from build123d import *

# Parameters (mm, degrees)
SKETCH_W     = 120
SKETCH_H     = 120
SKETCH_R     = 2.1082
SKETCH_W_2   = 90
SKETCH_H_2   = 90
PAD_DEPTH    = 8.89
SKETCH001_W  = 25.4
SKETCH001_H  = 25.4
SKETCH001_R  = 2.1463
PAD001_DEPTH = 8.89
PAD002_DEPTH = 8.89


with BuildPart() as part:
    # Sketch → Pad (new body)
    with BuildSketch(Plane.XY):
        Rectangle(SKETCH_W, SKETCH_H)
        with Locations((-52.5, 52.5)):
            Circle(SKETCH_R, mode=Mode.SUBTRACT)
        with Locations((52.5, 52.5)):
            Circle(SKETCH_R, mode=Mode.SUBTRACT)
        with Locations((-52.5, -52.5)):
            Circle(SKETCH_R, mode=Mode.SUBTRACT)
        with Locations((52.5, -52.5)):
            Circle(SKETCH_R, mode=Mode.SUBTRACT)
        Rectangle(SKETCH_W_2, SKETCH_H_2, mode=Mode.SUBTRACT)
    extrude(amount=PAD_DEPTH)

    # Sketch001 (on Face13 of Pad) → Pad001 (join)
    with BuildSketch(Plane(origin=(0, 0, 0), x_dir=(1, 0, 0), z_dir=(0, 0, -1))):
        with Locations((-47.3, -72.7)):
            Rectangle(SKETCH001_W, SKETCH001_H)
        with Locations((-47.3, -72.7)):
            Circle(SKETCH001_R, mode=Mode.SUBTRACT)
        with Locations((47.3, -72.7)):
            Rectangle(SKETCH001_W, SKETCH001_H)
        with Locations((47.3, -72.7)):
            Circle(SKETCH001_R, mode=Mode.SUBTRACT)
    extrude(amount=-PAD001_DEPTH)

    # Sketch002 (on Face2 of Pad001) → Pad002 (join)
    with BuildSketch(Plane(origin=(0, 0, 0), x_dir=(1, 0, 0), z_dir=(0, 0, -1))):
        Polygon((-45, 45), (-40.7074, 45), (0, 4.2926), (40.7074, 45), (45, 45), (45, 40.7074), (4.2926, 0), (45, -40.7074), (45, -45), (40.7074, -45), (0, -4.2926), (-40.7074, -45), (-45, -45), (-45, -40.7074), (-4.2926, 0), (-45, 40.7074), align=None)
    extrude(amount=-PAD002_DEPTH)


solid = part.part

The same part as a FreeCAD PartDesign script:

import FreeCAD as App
import Part
import Sketcher

V = App.Vector
Q = App.Units.Quantity


def add_polygon(sketch, points):
    """Adds a closed chain of lines whose ends are joined by coincident constraints."""
    first, n = sketch.GeometryCount, len(points)
    for a, b in zip(points, points[1:] + points[:1]):
        sketch.addGeometry(Part.LineSegment(App.Vector(*a, 0), App.Vector(*b, 0)), False)
    for i in range(n):
        sketch.addConstraint(Sketcher.Constraint("Coincident", first + i, 2, first + (i + 1) % n, 1))

doc = App.newDocument("Part")
params = doc.addObject("Spreadsheet::Sheet", "Params")
for row, (alias, value) in enumerate([
    ("sketch1_diameter", "0.166 in"),
    ("pad1_length", "0.35 in"),
    ("sketch2_width", "1 in"),
    ("sketch2_diameter", "0.169 in"),
    ("pad2_length", "0.35 in"),
    ("sketch3_width", "0.169 in"),
    ("pad3_length", "0.35 in"),
], start=1):
    params.set(f"A{row}", alias)
    params.set(f"B{row}", "=" + value)
    params.setAlias(f"B{row}", alias)

body = doc.addObject("PartDesign::Body", "Body")

# Sketch on XY plane
sketch1 = body.newObject("Sketcher::SketchObject", "Sketch")
sketch1.AttachmentSupport = (doc.getObject("XY_Plane"), [""])
sketch1.MapMode = "FlatFace"
add_polygon(sketch1, [(-60, 60), (-60, -60), (60, -60), (60, 60)])  # lines 0-3
sketch1.addGeometry(Part.Circle(V(-52.5, -52.5, 0), V(0, 0, 1), 2.1), False)  # 4
sketch1.addGeometry(Part.Circle(V(52.5, -52.5, 0), V(0, 0, 1), 2.1), False)  # 5
sketch1.addGeometry(Part.Circle(V(-52.5, 52.5, 0), V(0, 0, 1), 2.1), False)  # 6
add_polygon(sketch1, [(45, -45), (-45, -45), (-45, 45), (45, 45)])  # lines 7-10
sketch1.addGeometry(Part.Circle(V(52.5, 52.5, 0), V(0, 0, 1), 2.1), False)  # 11
sketch1.addConstraint(Sketcher.Constraint("Vertical", 0))
sketch1.addConstraint(Sketcher.Constraint("Horizontal", 1))
sketch1.addConstraint(Sketcher.Constraint("Vertical", 2))
sketch1.addConstraint(Sketcher.Constraint("Horizontal", 3))
sketch1.addConstraint(Sketcher.Constraint("Horizontal", 7))
sketch1.addConstraint(Sketcher.Constraint("Vertical", 8))
sketch1.addConstraint(Sketcher.Constraint("Horizontal", 9))
sketch1.addConstraint(Sketcher.Constraint("Vertical", 10))
sketch1.addConstraint(Sketcher.Constraint("Equal", 4, 5))
sketch1.addConstraint(Sketcher.Constraint("Equal", 5, 6))
sketch1.addConstraint(Sketcher.Constraint("Equal", 6, 11))
sketch1.addConstraint(Sketcher.Constraint("Symmetric", 5, 3, 6, 3, -1, 1))
sketch1.addConstraint(Sketcher.Constraint("Symmetric", 4, 3, 11, 3, -1, 1))
sketch1.addConstraint(Sketcher.Constraint("Symmetric", 0, 2, 2, 2, -1, 1))
sketch1.addConstraint(Sketcher.Constraint("Symmetric", 7, 2, 9, 2, -1, 1))
sketch1.addConstraint(Sketcher.Constraint("Symmetric", 4, 3, 5, 3, -2))
sketch1.addConstraint(Sketcher.Constraint("Equal", 3, 0))
sketch1.addConstraint(Sketcher.Constraint("Equal", 9, 8))
sketch1.addConstraint(Sketcher.Constraint("Diameter", 4, Q("0.166 in")))
sketch1.addConstraint(Sketcher.Constraint("DistanceX", 1, 1, 1, 2, 120.0))
sketch1.addConstraint(Sketcher.Constraint("DistanceX", 7, 2, 7, 1, 90.0))
sketch1.addConstraint(Sketcher.Constraint("DistanceX", 4, 3, -1, 1, 52.5))
sketch1.addConstraint(Sketcher.Constraint("DistanceY", 4, 3, -1, 1, 52.5))
sketch1.setExpression("Constraints[26]", "Params.sketch1_diameter")
pad1 = body.newObject("PartDesign::Pad", "Pad")
pad1.Profile = sketch1
pad1.setExpression("Length", "Params.pad1_length")

# Sketch on XY plane
sketch2 = body.newObject("Sketcher::SketchObject", "Sketch001")
sketch2.AttachmentSupport = (doc.getObject("XY_Plane"), [""])
sketch2.MapMode = "FlatFace"
add_polygon(sketch2, [(-60, 60), (-60, 85.4), (-34.6, 85.4), (-34.6, 60)])  # lines 0-3
sketch2.addGeometry(Part.Circle(V(-47.3, 72.7, 0), V(0, 0, 1), 2.1), False)  # 4
add_polygon(sketch2, [(34.6, 60), (34.6, 85.4), (60, 85.4), (60, 60)])  # lines 5-8
sketch2.addGeometry(Part.Circle(V(47.3, 72.7, 0), V(0, 0, 1), 2.1), False)  # 9
sketch2.addConstraint(Sketcher.Constraint("Vertical", 0))
sketch2.addConstraint(Sketcher.Constraint("Horizontal", 1))
sketch2.addConstraint(Sketcher.Constraint("Vertical", 2))
sketch2.addConstraint(Sketcher.Constraint("Horizontal", 3))
sketch2.addConstraint(Sketcher.Constraint("Vertical", 5))
sketch2.addConstraint(Sketcher.Constraint("Horizontal", 6))
sketch2.addConstraint(Sketcher.Constraint("Vertical", 7))
sketch2.addConstraint(Sketcher.Constraint("Horizontal", 8))
sketch2.addConstraint(Sketcher.Constraint("Equal", 4, 9))
sketch2.addConstraint(Sketcher.Constraint("Symmetric", 4, 3, 9, 3, -2))
sketch2.addConstraint(Sketcher.Constraint("Symmetric", 1, 2, 5, 2, -2))
sketch2.addConstraint(Sketcher.Constraint("Symmetric", 3, 2, 7, 2, -2))
sketch2.addConstraint(Sketcher.Constraint("Equal", 8, 0))
sketch2.addConstraint(Sketcher.Constraint("DistanceX", 1, 1, 1, 2, Q("1 in")))
sketch2.addConstraint(Sketcher.Constraint("Diameter", 4, Q("0.169 in")))
sketch2.addConstraint(Sketcher.Constraint("DistanceX", 0, 2, 4, 3, Q("0.5 in")))
sketch2.addConstraint(Sketcher.Constraint("DistanceY", 4, 3, 0, 2, Q("0.5 in")))
sketch2.addConstraint(Sketcher.Constraint("DistanceX", 4, 3, -1, 1, 47.3))
sketch2.addConstraint(Sketcher.Constraint("DistanceY", -1, 1, 4, 3, 72.7))
sketch2.setExpression("Constraints[21]", "Params.sketch2_width")
sketch2.setExpression("Constraints[22]", "Params.sketch2_diameter")
pad2 = body.newObject("PartDesign::Pad", "Pad001")
pad2.Profile = sketch2
pad2.setExpression("Length", "Params.pad2_length")

# Sketch on XY plane
sketch3 = body.newObject("Sketcher::SketchObject", "Sketch002")
sketch3.AttachmentSupport = (doc.getObject("XY_Plane"), [""])
sketch3.MapMode = "FlatFace"
add_polygon(sketch3, [(-40.7, -45), (-45, -45), (-45, -40.7), (-4.3, 0), (-45, 40.7), (-45, 45), (-40.7, 45), (0, 4.3), (40.7, 45), (45, 45), (45, 40.7), (4.3, 0), (45, -40.7), (45, -45), (40.7, -45), (0, -4.3)])  # lines 0-15
sketch3.addConstraint(Sketcher.Constraint("Horizontal", 0))
sketch3.addConstraint(Sketcher.Constraint("Vertical", 1))
sketch3.addConstraint(Sketcher.Constraint("Vertical", 4))
sketch3.addConstraint(Sketcher.Constraint("Horizontal", 5))
sketch3.addConstraint(Sketcher.Constraint("Horizontal", 8))
sketch3.addConstraint(Sketcher.Constraint("Vertical", 9))
sketch3.addConstraint(Sketcher.Constraint("Vertical", 12))
sketch3.addConstraint(Sketcher.Constraint("Horizontal", 13))
sketch3.addConstraint(Sketcher.Constraint("Symmetric", 0, 2, 8, 2, -1, 1))
sketch3.addConstraint(Sketcher.Constraint("Symmetric", 2, 2, 10, 2, -1, 1))
sketch3.addConstraint(Sketcher.Constraint("Symmetric", 3, 2, 11, 2, -1, 1))
sketch3.addConstraint(Sketcher.Constraint("Symmetric", 5, 2, 13, 2, -1, 1))
sketch3.addConstraint(Sketcher.Constraint("Symmetric", 6, 2, 14, 2, -1, 1))
sketch3.addConstraint(Sketcher.Constraint("Symmetric", 5, 2, 7, 2, -2))
sketch3.addConstraint(Sketcher.Constraint("Symmetric", 3, 2, 9, 2, -2))
sketch3.addConstraint(Sketcher.Constraint("PointOnObject", 2, 2, -1))
sketch3.addConstraint(Sketcher.Constraint("PointOnObject", 6, 2, -2))
sketch3.addConstraint(Sketcher.Constraint("Perpendicular", 2, 3))
sketch3.addConstraint(Sketcher.Constraint("Parallel", 3, 6))
sketch3.addConstraint(Sketcher.Constraint("Perpendicular", 6, 7))
sketch3.addConstraint(Sketcher.Constraint("Perpendicular", 14, 15))
sketch3.addConstraint(Sketcher.Constraint("Equal", 13, 1))
sketch3.addConstraint(Sketcher.Constraint("Equal", 3, 6))
sketch3.addConstraint(Sketcher.Constraint("DistanceX", 0, 2, 0, 1, Q("0.169 in")))
sketch3.addConstraint(Sketcher.Constraint("DistanceX", 0, 2, -1, 1, 45.0))
sketch3.setExpression("Constraints[39]", "Params.sketch3_width")
pad3 = body.newObject("PartDesign::Pad", "Pad002")
pad3.Profile = sketch3
pad3.setExpression("Length", "Params.pad3_length")

doc.recompute()
